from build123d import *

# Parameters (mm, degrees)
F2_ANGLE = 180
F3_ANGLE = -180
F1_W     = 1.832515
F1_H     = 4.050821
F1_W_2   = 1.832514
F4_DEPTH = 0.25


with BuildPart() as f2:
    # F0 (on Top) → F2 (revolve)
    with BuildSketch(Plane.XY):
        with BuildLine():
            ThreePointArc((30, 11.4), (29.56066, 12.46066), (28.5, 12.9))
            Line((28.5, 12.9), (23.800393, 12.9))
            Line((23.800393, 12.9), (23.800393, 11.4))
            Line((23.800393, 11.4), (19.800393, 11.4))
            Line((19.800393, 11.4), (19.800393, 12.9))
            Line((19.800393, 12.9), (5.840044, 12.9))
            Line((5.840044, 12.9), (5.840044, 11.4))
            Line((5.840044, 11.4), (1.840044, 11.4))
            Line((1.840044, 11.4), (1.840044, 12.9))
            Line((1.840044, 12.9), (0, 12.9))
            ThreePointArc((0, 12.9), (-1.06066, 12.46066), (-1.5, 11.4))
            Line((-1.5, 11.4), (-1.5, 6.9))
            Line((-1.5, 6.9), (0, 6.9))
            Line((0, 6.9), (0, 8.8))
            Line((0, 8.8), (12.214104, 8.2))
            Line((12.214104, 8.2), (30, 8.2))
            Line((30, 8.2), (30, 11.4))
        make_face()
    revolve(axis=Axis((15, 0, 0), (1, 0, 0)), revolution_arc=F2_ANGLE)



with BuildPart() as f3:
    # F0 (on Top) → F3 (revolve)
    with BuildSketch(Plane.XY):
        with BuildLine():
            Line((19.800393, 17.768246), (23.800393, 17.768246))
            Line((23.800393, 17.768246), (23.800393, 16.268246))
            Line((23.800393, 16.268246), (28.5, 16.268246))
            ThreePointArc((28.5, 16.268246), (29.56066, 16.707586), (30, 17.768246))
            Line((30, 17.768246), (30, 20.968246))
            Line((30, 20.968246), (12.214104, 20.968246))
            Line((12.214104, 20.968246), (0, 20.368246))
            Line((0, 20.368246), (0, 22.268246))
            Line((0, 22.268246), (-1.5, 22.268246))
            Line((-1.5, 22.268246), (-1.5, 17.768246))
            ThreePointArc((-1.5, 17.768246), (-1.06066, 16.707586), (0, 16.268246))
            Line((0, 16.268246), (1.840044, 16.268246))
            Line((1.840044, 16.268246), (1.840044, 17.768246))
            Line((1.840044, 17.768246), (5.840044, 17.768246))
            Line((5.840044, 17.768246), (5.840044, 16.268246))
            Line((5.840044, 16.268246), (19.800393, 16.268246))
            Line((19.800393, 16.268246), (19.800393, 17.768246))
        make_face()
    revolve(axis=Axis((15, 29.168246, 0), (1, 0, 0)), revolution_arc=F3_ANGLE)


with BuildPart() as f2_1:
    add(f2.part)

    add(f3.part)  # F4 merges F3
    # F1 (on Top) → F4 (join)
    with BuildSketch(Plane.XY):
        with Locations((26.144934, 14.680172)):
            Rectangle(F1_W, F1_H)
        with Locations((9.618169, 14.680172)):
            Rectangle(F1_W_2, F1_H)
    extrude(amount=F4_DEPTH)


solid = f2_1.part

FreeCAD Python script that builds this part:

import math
import FreeCAD as App
import Part
import Sketcher
from FreeCAD import Vector


def add_polygon(sketch, points):
    """Adds a closed chain of lines whose ends are joined by coincident constraints."""
    first, n = sketch.GeometryCount, len(points)
    for a, b in zip(points, points[1:] + points[:1]):
        sketch.addGeometry(Part.LineSegment(App.Vector(*a, 0), App.Vector(*b, 0)), False)
    for i in range(n):
        sketch.addConstraint(Sketcher.Constraint("Coincident", first + i, 2, first + (i + 1) % n, 1))

doc = App.newDocument("Part")
body = doc.addObject("PartDesign::Body", "Body")

sketch1 = doc.addObject("Sketcher::SketchObject", "Sketch")
body.addObject(sketch1)
sketch1.AttachmentSupport = (doc.XY_Plane, [""])
sketch1.MapMode = "FlatFace"
sketch1.addGeometry(Part.ArcOfCircle(Part.Circle(Vector(28.499999, 11.399999, 0), Vector(0, 0, 1), 1.500001), math.radians(0.000022), math.radians(89.999978)), False)
sketch1.addGeometry(Part.LineSegment(Vector(28.5, 12.9, 0), Vector(23.800393, 12.9, 0)), False)
sketch1.addGeometry(Part.LineSegment(Vector(23.800393, 12.9, 0), Vector(23.800393, 11.4, 0)), False)
sketch1.addGeometry(Part.LineSegment(Vector(23.800393, 11.4, 0), Vector(19.800393, 11.4, 0)), False)
sketch1.addGeometry(Part.LineSegment(Vector(19.800393, 11.4, 0), Vector(19.800393, 12.9, 0)), False)
sketch1.addGeometry(Part.LineSegment(Vector(19.800393, 12.9, 0), Vector(5.840044, 12.9, 0)), False)
sketch1.addGeometry(Part.LineSegment(Vector(5.840044, 12.9, 0), Vector(5.840044, 11.4, 0)), False)
sketch1.addGeometry(Part.LineSegment(Vector(5.840044, 11.4, 0), Vector(1.840044, 11.4, 0)), False)
sketch1.addGeometry(Part.LineSegment(Vector(1.840044, 11.4, 0), Vector(1.840044, 12.9, 0)), False)
sketch1.addGeometry(Part.LineSegment(Vector(1.840044, 12.9, 0), Vector(0, 12.9, 0)), False)
sketch1.addGeometry(Part.ArcOfCircle(Part.Circle(Vector(0.000001, 11.399999, 0), Vector(0, 0, 1), 1.500001), math.radians(90.000022), math.radians(179.999978)), False)
sketch1.addGeometry(Part.LineSegment(Vector(-1.5, 11.4, 0), Vector(-1.5, 6.9, 0)), False)
sketch1.addGeometry(Part.LineSegment(Vector(-1.5, 6.9, 0), Vector(0, 6.9, 0)), False)
sketch1.addGeometry(Part.LineSegment(Vector(0, 6.9, 0), Vector(0, 8.8, 0)), False)
sketch1.addGeometry(Part.LineSegment(Vector(0, 8.8, 0), Vector(12.214104, 8.2, 0)), False)
sketch1.addGeometry(Part.LineSegment(Vector(12.214104, 8.2, 0), Vector(30, 8.2, 0)), False)
sketch1.addGeometry(Part.LineSegment(Vector(30, 8.2, 0), Vector(30, 11.4, 0)), False)
sketch1.addConstraint(Sketcher.Constraint("Tangent", 0, 2, 1, 1))
sketch1.addConstraint(Sketcher.Constraint("Coincident", 1, 2, 2, 1))
sketch1.addConstraint(Sketcher.Constraint("Coincident", 2, 2, 3, 1))
sketch1.addConstraint(Sketcher.Constraint("Coincident", 3, 2, 4, 1))
sketch1.addConstraint(Sketcher.Constraint("Coincident", 4, 2, 5, 1))
sketch1.addConstraint(Sketcher.Constraint("Coincident", 5, 2, 6, 1))
sketch1.addConstraint(Sketcher.Constraint("Coincident", 6, 2, 7, 1))
sketch1.addConstraint(Sketcher.Constraint("Coincident", 7, 2, 8, 1))
sketch1.addConstraint(Sketcher.Constraint("Coincident", 8, 2, 9, 1))
sketch1.addConstraint(Sketcher.Constraint("Tangent", 9, 2, 10, 1))
sketch1.addConstraint(Sketcher.Constraint("Tangent", 10, 2, 11, 1))
sketch1.addConstraint(Sketcher.Constraint("Coincident", 11, 2, 12, 1))
sketch1.addConstraint(Sketcher.Constraint("Coincident", 12, 2, 13, 1))
sketch1.addConstraint(Sketcher.Constraint("Coincident", 13, 2, 14, 1))
sketch1.addConstraint(Sketcher.Constraint("Coincident", 14, 2, 15, 1))
sketch1.addConstraint(Sketcher.Constraint("Coincident", 15, 2, 16, 1))
sketch1.addConstraint(Sketcher.Constraint("Tangent", 16, 2, 0, 1))
sketch1.addConstraint(Sketcher.Constraint("Horizontal", 1))
sketch1.addConstraint(Sketcher.Constraint("Vertical", 2))
sketch1.addConstraint(Sketcher.Constraint("Horizontal", 3))
sketch1.addConstraint(Sketcher.Constraint("Vertical", 4))
sketch1.addConstraint(Sketcher.Constraint("Horizontal", 5))
sketch1.addConstraint(Sketcher.Constraint("Vertical", 6))
sketch1.addConstraint(Sketcher.Constraint("Horizontal", 7))
sketch1.addConstraint(Sketcher.Constraint("Vertical", 8))
sketch1.addConstraint(Sketcher.Constraint("Horizontal", 9))
sketch1.addConstraint(Sketcher.Constraint("Vertical", 11))
sketch1.addConstraint(Sketcher.Constraint("Horizontal", 12))
sketch1.addConstraint(Sketcher.Constraint("Vertical", 13))
sketch1.addConstraint(Sketcher.Constraint("Horizontal", 15))
sketch1.addConstraint(Sketcher.Constraint("Vertical", 16))
sketch1.addConstraint(Sketcher.Constraint("Equal", 0, 10))
sketch1.addConstraint(Sketcher.Constraint("PointOnObject", 10, 3, -2))
sketch1.addConstraint(Sketcher.Constraint("PointOnObject", 12, 2, -2))
sketch1.addConstraint(Sketcher.Constraint("Horizontal", 0, 3, 10, 3))
sketch1.addConstraint(Sketcher.Constraint("Horizontal", 10, 3, 2, 2))
sketch1.addConstraint(Sketcher.Constraint("Horizontal", 1, 2, 4, 2))
sketch1.addConstraint(Sketcher.Constraint("Horizontal", 3, 2, 6, 2))
sketch1.addConstraint(Sketcher.Constraint("Equal", 3, 7))
sketch1.addConstraint(Sketcher.Constraint("Radius", 0, 1.500001))
sketch1.addConstraint(Sketcher.Constraint("DistanceX", 3, 2, 3, 1, 4.0))
sketch1.addConstraint(Sketcher.Constraint("DistanceY", 11, 2, 11, 1, 4.5))
sketch1.addConstraint(Sketcher.Constraint("DistanceY", 13, 1, 13, 2, 1.9))
sketch1.addConstraint(Sketcher.Constraint("DistanceY", 16, 1, 16, 2, 3.2))
sketch1.addConstraint(Sketcher.Constraint("DistanceX", -1, 1, 15, 2, 30.0))
sketch1.addConstraint(Sketcher.Constraint("DistanceY", -1, 1, 0, 3, 11.399999))
sketch1.addConstraint(Sketcher.Constraint("DistanceX", 5, 2, 5, 1, 13.960349))
sketch1.addConstraint(Sketcher.Constraint("DistanceX", 1, 2, 1, 1, 4.699607))
sketch1.addConstraint(Sketcher.Constraint("DistanceX", 15, 1, 15, 2, 17.785896))
revolution = doc.addObject("PartDesign::Revolution", "Revolution")
body.addObject(revolution)
revolution.Profile = sketch1
revolution.ReferenceAxis = (sketch1, ["H_Axis"])
revolution.Angle = 180
body2 = doc.addObject("PartDesign::Body", "Body001")

sketch2 = doc.addObject("Sketcher::SketchObject", "Sketch001")
body2.addObject(sketch2)
sketch2.AttachmentSupport = (doc.getObject("XY_Plane001"), [""])
sketch2.MapMode = "FlatFace"
sketch2.addGeometry(Part.LineSegment(Vector(19.800393, 17.768246, 0), Vector(23.800393, 17.768246, 0)), False)
sketch2.addGeometry(Part.LineSegment(Vector(23.800393, 17.768246, 0), Vector(23.800393, 16.268246, 0)), False)
sketch2.addGeometry(Part.LineSegment(Vector(23.800393, 16.268246, 0), Vector(28.5, 16.268246, 0)), False)
sketch2.addGeometry(Part.ArcOfCircle(Part.Circle(Vector(28.499999, 17.768247, 0), Vector(0, 0, 1), 1.500001), math.radians(-89.999978), math.radians(-0.000022)), False)
sketch2.addGeometry(Part.LineSegment(Vector(30, 17.768246, 0), Vector(30, 20.968246, 0)), False)
sketch2.addGeometry(Part.LineSegment(Vector(30, 20.968246, 0), Vector(12.214104, 20.968246, 0)), False)
sketch2.addGeometry(Part.LineSegment(Vector(12.214104, 20.968246, 0), Vector(0, 20.368246, 0)), False)
sketch2.addGeometry(Part.LineSegment(Vector(0, 20.368246, 0), Vector(0, 22.268246, 0)), False)
sketch2.addGeometry(Part.LineSegment(Vector(0, 22.268246, 0), Vector(-1.5, 22.268246, 0)), False)
sketch2.addGeometry(Part.LineSegment(Vector(-1.5, 22.268246, 0), Vector(-1.5, 17.768246, 0)), False)
sketch2.addGeometry(Part.ArcOfCircle(Part.Circle(Vector(0.000001, 17.768247, 0), Vector(0, 0, 1), 1.500001), math.radians(-179.999978), math.radians(-90.000022)), False)
sketch2.addGeometry(Part.LineSegment(Vector(0, 16.268246, 0), Vector(1.840044, 16.268246, 0)), False)
sketch2.addGeometry(Part.LineSegment(Vector(1.840044, 16.268246, 0), Vector(1.840044, 17.768246, 0)), False)
sketch2.addGeometry(Part.LineSegment(Vector(1.840044, 17.768246, 0), Vector(5.840044, 17.768246, 0)), False)
sketch2.addGeometry(Part.LineSegment(Vector(5.840044, 17.768246, 0), Vector(5.840044, 16.268246, 0)), False)
sketch2.addGeometry(Part.LineSegment(Vector(5.840044, 16.268246, 0), Vector(19.800393, 16.268246, 0)), False)
sketch2.addGeometry(Part.LineSegment(Vector(19.800393, 16.268246, 0), Vector(19.800393, 17.768246, 0)), False)
sketch2.addGeometry(Part.LineSegment(Vector(-1.5, 29.168246, 0), Vector(30, 29.168246, 0)), True)
sketch2.addConstraint(Sketcher.Constraint("Coincident", 0, 2, 1, 1))
sketch2.addConstraint(Sketcher.Constraint("Coincident", 1, 2, 2, 1))
sketch2.addConstraint(Sketcher.Constraint("Tangent", 2, 2, 3, 1))
sketch2.addConstraint(Sketcher.Constraint("Tangent", 3, 2, 4, 1))
sketch2.addConstraint(Sketcher.Constraint("Coincident", 4, 2, 5, 1))
sketch2.addConstraint(Sketcher.Constraint("Coincident", 5, 2, 6, 1))
sketch2.addConstraint(Sketcher.Constraint("Coincident", 6, 2, 7, 1))
sketch2.addConstraint(Sketcher.Constraint("Coincident", 7, 2, 8, 1))
sketch2.addConstraint(Sketcher.Constraint("Coincident", 8, 2, 9, 1))
sketch2.addConstraint(Sketcher.Constraint("Tangent", 9, 2, 10, 1))
sketch2.addConstraint(Sketcher.Constraint("Tangent", 10, 2, 11, 1))
sketch2.addConstraint(Sketcher.Constraint("Coincident", 11, 2, 12, 1))
sketch2.addConstraint(Sketcher.Constraint("Coincident", 12, 2, 13, 1))
sketch2.addConstraint(Sketcher.Constraint("Coincident", 13, 2, 14, 1))
sketch2.addConstraint(Sketcher.Constraint("Coincident", 14, 2, 15, 1))
sketch2.addConstraint(Sketcher.Constraint("Coincident", 15, 2, 16, 1))
sketch2.addConstraint(Sketcher.Constraint("Coincident", 16, 2, 0, 1))
sketch2.addConstraint(Sketcher.Constraint("Horizontal", 0))
sketch2.addConstraint(Sketcher.Constraint("Vertical", 1))
sketch2.addConstraint(Sketcher.Constraint("Horizontal", 2))
sketch2.addConstraint(Sketcher.Constraint("Vertical", 4))
sketch2.addConstraint(Sketcher.Constraint("Horizontal", 5))
sketch2.addConstraint(Sketcher.Constraint("Vertical", 7))
sketch2.addConstraint(Sketcher.Constraint("Horizontal", 8))
sketch2.addConstraint(Sketcher.Constraint("Vertical", 9))
sketch2.addConstraint(Sketcher.Constraint("Horizontal", 11))
sketch2.addConstraint(Sketcher.Constraint("Vertical", 12))
sketch2.addConstraint(Sketcher.Constraint("Horizontal", 13))
sketch2.addConstraint(Sketcher.Constraint("Vertical", 14))
sketch2.addConstraint(Sketcher.Constraint("Horizontal", 15))
sketch2.addConstraint(Sketcher.Constraint("Vertical", 16))
sketch2.addConstraint(Sketcher.Constraint("Horizontal", 17))
sketch2.addConstraint(Sketcher.Constraint("Equal", 3, 10))
sketch2.addConstraint(Sketcher.Constraint("PointOnObject", 10, 3, -2))
sketch2.addConstraint(Sketcher.Constraint("PointOnObject", 6, 2, -2))
sketch2.addConstraint(Sketcher.Constraint("Horizontal", 3, 3, 10, 3))
sketch2.addConstraint(Sketcher.Constraint("Horizontal", 10, 3, 0, 2))
sketch2.addConstraint(Sketcher.Constraint("Horizontal", 9, 2, 12, 2))
sketch2.addConstraint(Sketcher.Constraint("Horizontal", 11, 2, 14, 2))
sketch2.addConstraint(Sketcher.Constraint("Vertical", 9, 2, 17, 1))
sketch2.addConstraint(Sketcher.Constraint("Vertical", 4, 2, 17, 2))
sketch2.addConstraint(Sketcher.Constraint("Equal", 0, 13))
sketch2.addConstraint(Sketcher.Constraint("Radius", 3, 1.500001))
sketch2.addConstraint(Sketcher.Constraint("DistanceX", 0, 1, 0, 2, 4.0))
sketch2.addConstraint(Sketcher.Constraint("DistanceX", 17, 1, 17, 2, 31.5))
sketch2.addConstraint(Sketcher.Constraint("DistanceY", 4, 1, 4, 2, 3.2))
sketch2.addConstraint(Sketcher.Constraint("DistanceY", 7, 1, 7, 2, 1.9))
sketch2.addConstraint(Sketcher.Constraint("DistanceY", 9, 2, 9, 1, 4.5))
sketch2.addConstraint(Sketcher.Constraint("DistanceY", 8, 2, 17, 1, 6.9))
sketch2.addConstraint(Sketcher.Constraint("DistanceX", 15, 1, 15, 2, 13.960349))
sketch2.addConstraint(Sketcher.Constraint("DistanceX", 2, 1, 2, 2, 4.699607))
sketch2.addConstraint(Sketcher.Constraint("DistanceX", 5, 2, 5, 1, 17.785896))
sketch2.addConstraint(Sketcher.Constraint("DistanceY", -1, 1, 3, 3, 17.768247))
revolution2 = doc.addObject("PartDesign::Revolution", "Revolution001")
body2.addObject(revolution2)
revolution2.Profile = sketch2
revolution2.ReferenceAxis = (sketch2, ["Axis0"])
revolution2.Angle = 180
revolution2.Reversed = True
body.AllowCompound = True
doc.recompute()

boolean = doc.addObject("PartDesign::Boolean", "Boolean")
body.addObject(boolean)
boolean.Type = "Fuse"
boolean.addObjects([body2])

sketch3 = doc.addObject("Sketcher::SketchObject", "Sketch002")
body.addObject(sketch3)
sketch3.AttachmentSupport = (doc.XY_Plane, [""])
sketch3.MapMode = "FlatFace"
add_polygon(sketch3, [(25.228676, 16.705582), (25.228676, 12.654761), (27.061191, 12.654761), (27.061191, 16.705582)])
add_polygon(sketch3, [(8.701912, 16.705582), (8.701912, 12.654761), (10.534426, 12.654761), (10.534426, 16.705582)])
sketch3.addConstraint(Sketcher.Constraint("Vertical", 0))
sketch3.addConstraint(Sketcher.Constraint("Horizontal", 1))
sketch3.addConstraint(Sketcher.Constraint("Vertical", 2))
sketch3.addConstraint(Sketcher.Constraint("Horizontal", 3))
sketch3.addConstraint(Sketcher.Constraint("Vertical", 4))
sketch3.addConstraint(Sketcher.Constraint("Horizontal", 5))
sketch3.addConstraint(Sketcher.Constraint("Vertical", 6))
sketch3.addConstraint(Sketcher.Constraint("Horizontal", 7))
sketch3.addConstraint(Sketcher.Constraint("Horizontal", 1, 2, 4, 2))
sketch3.addConstraint(Sketcher.Constraint("Horizontal", 3, 2, 6, 2))
sketch3.addConstraint(Sketcher.Constraint("Equal", 3, 5))
sketch3.addConstraint(Sketcher.Constraint("DistanceY", 0, 2, 0, 1, 4.050821))
sketch3.addConstraint(Sketcher.Constraint("DistanceX", 1, 1, 1, 2, 1.832515))
sketch3.addConstraint(Sketcher.Constraint("DistanceY", -1, 1, 0, 2, 12.654761))
sketch3.addConstraint(Sketcher.Constraint("DistanceX", -1, 1, 1, 2, 27.061191))
sketch3.addConstraint(Sketcher.Constraint("DistanceX", 4, 2, 1, 2, 18.359279))
pad1 = doc.addObject("PartDesign::Pad", "Pad")
body.addObject(pad1)
pad1.Profile = sketch3
pad1.Length = 0.25

doc.recompute()
